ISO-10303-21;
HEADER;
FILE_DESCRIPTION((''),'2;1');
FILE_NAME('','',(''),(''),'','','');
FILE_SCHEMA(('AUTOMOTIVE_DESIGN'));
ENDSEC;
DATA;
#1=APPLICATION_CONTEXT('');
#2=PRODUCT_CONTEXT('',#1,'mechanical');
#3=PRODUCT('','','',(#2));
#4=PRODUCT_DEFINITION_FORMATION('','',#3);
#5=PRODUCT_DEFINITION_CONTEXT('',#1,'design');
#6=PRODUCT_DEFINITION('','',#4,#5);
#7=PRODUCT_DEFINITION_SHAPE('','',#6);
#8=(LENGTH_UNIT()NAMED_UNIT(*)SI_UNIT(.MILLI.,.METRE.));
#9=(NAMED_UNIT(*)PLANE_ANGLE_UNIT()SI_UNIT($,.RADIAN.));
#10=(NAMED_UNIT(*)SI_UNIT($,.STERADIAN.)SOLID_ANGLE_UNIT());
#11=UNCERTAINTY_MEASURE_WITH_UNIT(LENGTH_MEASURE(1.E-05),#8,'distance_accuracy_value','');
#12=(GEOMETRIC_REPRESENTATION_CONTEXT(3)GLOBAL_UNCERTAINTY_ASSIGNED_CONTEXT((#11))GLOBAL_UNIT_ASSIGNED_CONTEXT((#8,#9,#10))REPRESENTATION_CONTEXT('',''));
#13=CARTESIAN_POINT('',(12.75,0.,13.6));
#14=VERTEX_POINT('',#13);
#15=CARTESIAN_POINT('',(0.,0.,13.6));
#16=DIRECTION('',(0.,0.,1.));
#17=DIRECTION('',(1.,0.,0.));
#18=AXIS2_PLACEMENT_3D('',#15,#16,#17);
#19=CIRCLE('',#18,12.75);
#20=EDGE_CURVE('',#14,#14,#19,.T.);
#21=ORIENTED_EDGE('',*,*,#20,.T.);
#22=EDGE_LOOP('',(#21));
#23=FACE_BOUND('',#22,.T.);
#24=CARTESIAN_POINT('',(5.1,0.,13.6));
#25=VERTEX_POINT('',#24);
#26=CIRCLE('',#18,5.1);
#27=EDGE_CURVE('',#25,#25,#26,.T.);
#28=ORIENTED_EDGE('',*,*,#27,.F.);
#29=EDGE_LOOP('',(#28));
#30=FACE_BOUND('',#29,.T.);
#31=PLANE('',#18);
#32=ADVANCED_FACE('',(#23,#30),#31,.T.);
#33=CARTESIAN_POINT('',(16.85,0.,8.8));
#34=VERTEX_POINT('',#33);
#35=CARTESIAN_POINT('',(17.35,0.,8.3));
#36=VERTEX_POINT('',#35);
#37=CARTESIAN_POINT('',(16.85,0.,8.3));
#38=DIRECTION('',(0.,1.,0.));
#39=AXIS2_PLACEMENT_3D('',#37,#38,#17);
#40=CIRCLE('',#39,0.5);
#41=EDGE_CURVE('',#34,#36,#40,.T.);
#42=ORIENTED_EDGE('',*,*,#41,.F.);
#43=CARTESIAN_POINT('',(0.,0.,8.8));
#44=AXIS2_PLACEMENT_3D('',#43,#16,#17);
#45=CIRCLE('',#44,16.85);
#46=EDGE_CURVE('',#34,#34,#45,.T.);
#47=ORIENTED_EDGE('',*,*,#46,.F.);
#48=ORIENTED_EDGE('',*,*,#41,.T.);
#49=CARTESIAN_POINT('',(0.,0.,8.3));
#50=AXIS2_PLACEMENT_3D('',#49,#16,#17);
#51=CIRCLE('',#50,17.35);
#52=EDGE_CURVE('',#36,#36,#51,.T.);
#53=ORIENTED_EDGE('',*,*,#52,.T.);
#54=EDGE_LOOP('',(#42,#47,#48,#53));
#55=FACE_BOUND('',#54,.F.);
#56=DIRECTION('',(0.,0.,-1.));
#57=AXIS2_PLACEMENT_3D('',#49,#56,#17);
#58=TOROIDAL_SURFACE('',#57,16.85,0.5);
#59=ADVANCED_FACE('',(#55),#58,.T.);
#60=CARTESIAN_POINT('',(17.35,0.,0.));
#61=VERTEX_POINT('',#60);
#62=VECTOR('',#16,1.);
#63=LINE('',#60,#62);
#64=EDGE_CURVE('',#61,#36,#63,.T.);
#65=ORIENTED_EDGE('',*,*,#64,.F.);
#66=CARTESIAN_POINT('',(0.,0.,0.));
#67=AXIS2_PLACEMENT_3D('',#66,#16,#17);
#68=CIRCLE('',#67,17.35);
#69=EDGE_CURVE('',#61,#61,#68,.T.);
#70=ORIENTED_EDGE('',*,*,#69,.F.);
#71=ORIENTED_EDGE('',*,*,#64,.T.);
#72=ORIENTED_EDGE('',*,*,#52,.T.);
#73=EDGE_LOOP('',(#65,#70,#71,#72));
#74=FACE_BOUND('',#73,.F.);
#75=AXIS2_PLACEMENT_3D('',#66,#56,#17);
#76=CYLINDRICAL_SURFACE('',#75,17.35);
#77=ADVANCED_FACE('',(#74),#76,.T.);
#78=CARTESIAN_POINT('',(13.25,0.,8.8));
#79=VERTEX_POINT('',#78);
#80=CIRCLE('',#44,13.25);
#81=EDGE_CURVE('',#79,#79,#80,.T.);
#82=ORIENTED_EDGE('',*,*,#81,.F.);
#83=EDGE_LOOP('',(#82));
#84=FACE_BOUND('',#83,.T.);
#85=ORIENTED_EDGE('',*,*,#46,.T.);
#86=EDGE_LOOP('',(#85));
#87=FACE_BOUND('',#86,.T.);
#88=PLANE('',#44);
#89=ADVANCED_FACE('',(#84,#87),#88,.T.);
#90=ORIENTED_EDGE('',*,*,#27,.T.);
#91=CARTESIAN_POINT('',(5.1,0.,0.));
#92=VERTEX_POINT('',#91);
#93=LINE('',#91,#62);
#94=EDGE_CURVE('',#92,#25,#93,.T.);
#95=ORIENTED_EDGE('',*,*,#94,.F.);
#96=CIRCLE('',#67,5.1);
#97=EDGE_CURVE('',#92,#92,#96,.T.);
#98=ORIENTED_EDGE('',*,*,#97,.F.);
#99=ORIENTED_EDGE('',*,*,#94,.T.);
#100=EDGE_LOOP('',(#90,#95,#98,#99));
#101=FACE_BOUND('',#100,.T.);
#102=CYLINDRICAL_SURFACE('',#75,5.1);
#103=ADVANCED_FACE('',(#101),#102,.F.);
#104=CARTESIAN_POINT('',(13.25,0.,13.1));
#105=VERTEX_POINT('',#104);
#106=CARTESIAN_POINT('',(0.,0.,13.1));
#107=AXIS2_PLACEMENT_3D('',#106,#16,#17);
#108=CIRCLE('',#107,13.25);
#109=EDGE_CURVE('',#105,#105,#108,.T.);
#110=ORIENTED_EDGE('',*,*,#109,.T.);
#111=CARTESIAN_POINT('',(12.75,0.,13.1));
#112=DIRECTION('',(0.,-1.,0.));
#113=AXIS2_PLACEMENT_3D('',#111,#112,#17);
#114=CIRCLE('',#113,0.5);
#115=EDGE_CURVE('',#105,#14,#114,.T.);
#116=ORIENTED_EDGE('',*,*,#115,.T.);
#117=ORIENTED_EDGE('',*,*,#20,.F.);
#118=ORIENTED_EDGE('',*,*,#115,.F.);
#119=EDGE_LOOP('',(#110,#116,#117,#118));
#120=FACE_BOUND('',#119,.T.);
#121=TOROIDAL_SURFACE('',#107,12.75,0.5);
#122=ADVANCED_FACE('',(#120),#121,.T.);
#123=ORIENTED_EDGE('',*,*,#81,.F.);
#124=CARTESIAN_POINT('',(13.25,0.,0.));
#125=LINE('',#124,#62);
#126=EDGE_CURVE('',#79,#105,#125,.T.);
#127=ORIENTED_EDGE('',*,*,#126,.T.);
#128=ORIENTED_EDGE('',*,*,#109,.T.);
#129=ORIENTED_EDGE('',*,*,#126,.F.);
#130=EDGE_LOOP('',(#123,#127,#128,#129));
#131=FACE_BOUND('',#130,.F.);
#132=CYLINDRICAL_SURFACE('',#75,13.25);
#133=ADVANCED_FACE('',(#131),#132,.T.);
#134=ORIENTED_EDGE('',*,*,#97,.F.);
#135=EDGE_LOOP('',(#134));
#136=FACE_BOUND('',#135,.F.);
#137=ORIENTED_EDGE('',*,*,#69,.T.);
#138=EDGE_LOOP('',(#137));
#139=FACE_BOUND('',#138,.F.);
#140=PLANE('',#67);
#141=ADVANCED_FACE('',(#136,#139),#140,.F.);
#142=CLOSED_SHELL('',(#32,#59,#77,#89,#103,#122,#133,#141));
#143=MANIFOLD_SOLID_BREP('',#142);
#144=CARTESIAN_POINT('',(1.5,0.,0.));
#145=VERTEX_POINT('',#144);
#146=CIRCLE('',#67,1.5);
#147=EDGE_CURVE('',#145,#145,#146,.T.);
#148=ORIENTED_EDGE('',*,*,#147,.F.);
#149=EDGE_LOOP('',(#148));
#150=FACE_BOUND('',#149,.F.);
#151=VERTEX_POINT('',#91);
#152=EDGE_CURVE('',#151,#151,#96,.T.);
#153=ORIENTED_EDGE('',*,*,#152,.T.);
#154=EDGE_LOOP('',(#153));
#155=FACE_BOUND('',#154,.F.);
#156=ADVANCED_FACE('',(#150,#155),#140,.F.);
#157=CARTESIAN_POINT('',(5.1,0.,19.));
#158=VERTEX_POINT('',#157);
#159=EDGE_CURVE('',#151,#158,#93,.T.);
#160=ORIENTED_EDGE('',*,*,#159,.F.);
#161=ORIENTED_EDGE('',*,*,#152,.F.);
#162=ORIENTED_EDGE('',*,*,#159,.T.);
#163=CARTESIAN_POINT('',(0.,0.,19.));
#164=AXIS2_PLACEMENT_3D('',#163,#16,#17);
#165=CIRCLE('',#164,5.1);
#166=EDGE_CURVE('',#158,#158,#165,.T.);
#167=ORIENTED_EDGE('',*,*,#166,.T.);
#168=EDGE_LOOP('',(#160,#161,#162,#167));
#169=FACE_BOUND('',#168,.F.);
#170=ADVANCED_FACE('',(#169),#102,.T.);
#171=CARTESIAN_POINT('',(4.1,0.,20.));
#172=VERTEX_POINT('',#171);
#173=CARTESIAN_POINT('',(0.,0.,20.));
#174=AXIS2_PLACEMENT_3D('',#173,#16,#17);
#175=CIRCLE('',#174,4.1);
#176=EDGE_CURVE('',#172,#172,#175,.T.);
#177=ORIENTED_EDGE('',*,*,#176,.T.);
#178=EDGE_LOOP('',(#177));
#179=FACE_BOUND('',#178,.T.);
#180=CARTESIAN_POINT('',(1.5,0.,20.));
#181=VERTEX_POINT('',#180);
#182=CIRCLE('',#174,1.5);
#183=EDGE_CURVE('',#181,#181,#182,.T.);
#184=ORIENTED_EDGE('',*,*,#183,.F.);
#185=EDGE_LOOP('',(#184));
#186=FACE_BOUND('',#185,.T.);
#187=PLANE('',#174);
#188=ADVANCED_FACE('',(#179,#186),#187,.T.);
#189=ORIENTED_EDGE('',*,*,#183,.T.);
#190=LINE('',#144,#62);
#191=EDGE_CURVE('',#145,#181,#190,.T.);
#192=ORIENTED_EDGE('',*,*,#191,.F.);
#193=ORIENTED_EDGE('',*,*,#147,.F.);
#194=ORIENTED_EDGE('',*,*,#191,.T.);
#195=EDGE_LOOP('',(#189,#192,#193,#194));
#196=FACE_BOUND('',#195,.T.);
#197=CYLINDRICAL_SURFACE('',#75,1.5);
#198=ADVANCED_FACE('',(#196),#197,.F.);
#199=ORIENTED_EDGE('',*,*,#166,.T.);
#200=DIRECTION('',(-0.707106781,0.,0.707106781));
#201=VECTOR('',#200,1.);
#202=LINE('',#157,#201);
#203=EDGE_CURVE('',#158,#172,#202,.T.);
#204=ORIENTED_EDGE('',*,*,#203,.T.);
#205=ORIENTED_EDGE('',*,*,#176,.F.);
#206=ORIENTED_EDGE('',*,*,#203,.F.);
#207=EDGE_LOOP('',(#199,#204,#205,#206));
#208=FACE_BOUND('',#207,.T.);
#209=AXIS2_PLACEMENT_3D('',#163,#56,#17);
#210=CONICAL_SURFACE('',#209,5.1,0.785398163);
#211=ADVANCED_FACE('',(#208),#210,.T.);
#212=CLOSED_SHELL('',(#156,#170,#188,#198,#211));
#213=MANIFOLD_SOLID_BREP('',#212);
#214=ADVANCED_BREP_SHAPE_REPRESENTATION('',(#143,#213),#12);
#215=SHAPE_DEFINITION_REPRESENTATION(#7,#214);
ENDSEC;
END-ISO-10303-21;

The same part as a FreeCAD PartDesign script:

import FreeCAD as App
import Part
import Sketcher

V = App.Vector
Q = App.Units.Quantity


def edges_at(feature, points):
    """Names of the edges that pass closest to the given points."""
    edges = feature.Shape.Edges
    near = lambda p: min(range(len(edges)), key=lambda i: edges[i].distToShape(Part.Vertex(*p))[0])
    return sorted({f"Edge{near(p) + 1}" for p in points})

doc = App.newDocument("Part")
params = doc.addObject("Spreadsheet::Sheet", "Params")
for row, (alias, value) in enumerate([
    ("sketch1_diameter", "34.7 mm"),
    ("sketch1_diameter2", "26.5 mm"),
    ("pad1_length", "8.8 mm"),
    ("sketch2_diameter", "26.5 mm"),
    ("sketch2_diameter2", "10.2 mm"),
    ("pad2_length", "13.6 mm"),
    ("fillet_radius", "0.5 mm"),
    ("fillet2_radius", "0.5 mm"),
    ("sketch3_diameter", "3 mm"),
    ("sketch3_diameter2", "10.2 mm"),
    ("pad3_length", "20 mm"),
    ("chamfer_size", "1 mm"),
], start=1):
    params.set(f"A{row}", alias)
    params.set(f"B{row}", "=" + value)
    params.setAlias(f"B{row}", alias)

body = doc.addObject("PartDesign::Body", "Body")

# Sketch on XY plane
sketch1 = body.newObject("Sketcher::SketchObject", "Sketch")
sketch1.AttachmentSupport = (doc.getObject("XY_Plane"), [""])
sketch1.MapMode = "FlatFace"
sketch1.addGeometry(Part.Circle(V(0, 0, 0), V(0, 0, 1), 17.35), False)
sketch1.addGeometry(Part.Circle(V(0, 0, 0), V(0, 0, 1), 13.25), False)
sketch1.addConstraint(Sketcher.Constraint("Coincident", 0, 3, -1, 1))
sketch1.addConstraint(Sketcher.Constraint("Coincident", 1, 3, -1, 1))
sketch1.addConstraint(Sketcher.Constraint("Diameter", 0, Q("34.7 mm")))
sketch1.addConstraint(Sketcher.Constraint("Diameter", 1, Q("26.5 mm")))
sketch1.setExpression("Constraints[2]", "Params.sketch1_diameter")
sketch1.setExpression("Constraints[3]", "Params.sketch1_diameter2")
pad1 = body.newObject("PartDesign::Pad", "Pad")
pad1.Profile = sketch1
pad1.setExpression("Length", "Params.pad1_length")

# Sketch on XY plane
sketch2 = body.newObject("Sketcher::SketchObject", "Sketch001")
sketch2.AttachmentSupport = (doc.getObject("XY_Plane"), [""])
sketch2.MapMode = "FlatFace"
sketch2.addGeometry(Part.Circle(V(0, 0, 0), V(0, 0, 1), 13.25), False)
sketch2.addGeometry(Part.Circle(V(0, 0, 0), V(0, 0, 1), 5.1), False)
sketch2.addConstraint(Sketcher.Constraint("Coincident", 0, 3, -1, 1))
sketch2.addConstraint(Sketcher.Constraint("Coincident", 1, 3, -1, 1))
sketch2.addConstraint(Sketcher.Constraint("Diameter", 0, Q("26.5 mm")))
sketch2.addConstraint(Sketcher.Constraint("Diameter", 1, Q("10.2 mm")))
sketch2.setExpression("Constraints[2]", "Params.sketch2_diameter")
sketch2.setExpression("Constraints[3]", "Params.sketch2_diameter2")
pad2 = body.newObject("PartDesign::Pad", "Pad001")
pad2.Profile = sketch2
pad2.setExpression("Length", "Params.pad2_length")
doc.recompute()

fillet = body.newObject("PartDesign::Fillet", "Fillet")
fillet.Base = (pad2, edges_at(pad2, [(-13.25, 0, 13.6)]))
fillet.setExpression("Radius", "Params.fillet_radius")
doc.recompute()

fillet2 = body.newObject("PartDesign::Fillet", "Fillet001")
fillet2.Base = (fillet, edges_at(fillet, [(-17.35, 0, 8.8)]))
fillet2.setExpression("Radius", "Params.fillet2_radius")
body2 = doc.addObject("PartDesign::Body", "Body001")

# Sketch on XY plane
sketch3 = body2.newObject("Sketcher::SketchObject", "Sketch002")
sketch3.AttachmentSupport = (doc.getObject("XY_Plane001"), [""])
sketch3.MapMode = "FlatFace"
sketch3.addGeometry(Part.Circle(V(0, 0, 0), V(0, 0, 1), 5.1), False)
sketch3.addGeometry(Part.Circle(V(0, 0, 0), V(0, 0, 1), 1.5), False)
sketch3.addConstraint(Sketcher.Constraint("Coincident", 0, 3, -1, 1))
sketch3.addConstraint(Sketcher.Constraint("Coincident", 1, 3, -1, 1))
sketch3.addConstraint(Sketcher.Constraint("Diameter", 1, Q("3 mm")))
sketch3.addConstraint(Sketcher.Constraint("Diameter", 0, Q("10.2 mm")))
sketch3.setExpression("Constraints[2]", "Params.sketch3_diameter")
sketch3.setExpression("Constraints[3]", "Params.sketch3_diameter2")
pad3 = body2.newObject("PartDesign::Pad", "Pad002")
pad3.Profile = sketch3
pad3.setExpression("Length", "Params.pad3_length")
doc.recompute()

chamfer = body2.newObject("PartDesign::Chamfer", "Chamfer")
chamfer.Base = (pad3, edges_at(pad3, [(-5.1, 0, 20)]))
chamfer.setExpression("Size", "Params.chamfer_size")

doc.recompute()
